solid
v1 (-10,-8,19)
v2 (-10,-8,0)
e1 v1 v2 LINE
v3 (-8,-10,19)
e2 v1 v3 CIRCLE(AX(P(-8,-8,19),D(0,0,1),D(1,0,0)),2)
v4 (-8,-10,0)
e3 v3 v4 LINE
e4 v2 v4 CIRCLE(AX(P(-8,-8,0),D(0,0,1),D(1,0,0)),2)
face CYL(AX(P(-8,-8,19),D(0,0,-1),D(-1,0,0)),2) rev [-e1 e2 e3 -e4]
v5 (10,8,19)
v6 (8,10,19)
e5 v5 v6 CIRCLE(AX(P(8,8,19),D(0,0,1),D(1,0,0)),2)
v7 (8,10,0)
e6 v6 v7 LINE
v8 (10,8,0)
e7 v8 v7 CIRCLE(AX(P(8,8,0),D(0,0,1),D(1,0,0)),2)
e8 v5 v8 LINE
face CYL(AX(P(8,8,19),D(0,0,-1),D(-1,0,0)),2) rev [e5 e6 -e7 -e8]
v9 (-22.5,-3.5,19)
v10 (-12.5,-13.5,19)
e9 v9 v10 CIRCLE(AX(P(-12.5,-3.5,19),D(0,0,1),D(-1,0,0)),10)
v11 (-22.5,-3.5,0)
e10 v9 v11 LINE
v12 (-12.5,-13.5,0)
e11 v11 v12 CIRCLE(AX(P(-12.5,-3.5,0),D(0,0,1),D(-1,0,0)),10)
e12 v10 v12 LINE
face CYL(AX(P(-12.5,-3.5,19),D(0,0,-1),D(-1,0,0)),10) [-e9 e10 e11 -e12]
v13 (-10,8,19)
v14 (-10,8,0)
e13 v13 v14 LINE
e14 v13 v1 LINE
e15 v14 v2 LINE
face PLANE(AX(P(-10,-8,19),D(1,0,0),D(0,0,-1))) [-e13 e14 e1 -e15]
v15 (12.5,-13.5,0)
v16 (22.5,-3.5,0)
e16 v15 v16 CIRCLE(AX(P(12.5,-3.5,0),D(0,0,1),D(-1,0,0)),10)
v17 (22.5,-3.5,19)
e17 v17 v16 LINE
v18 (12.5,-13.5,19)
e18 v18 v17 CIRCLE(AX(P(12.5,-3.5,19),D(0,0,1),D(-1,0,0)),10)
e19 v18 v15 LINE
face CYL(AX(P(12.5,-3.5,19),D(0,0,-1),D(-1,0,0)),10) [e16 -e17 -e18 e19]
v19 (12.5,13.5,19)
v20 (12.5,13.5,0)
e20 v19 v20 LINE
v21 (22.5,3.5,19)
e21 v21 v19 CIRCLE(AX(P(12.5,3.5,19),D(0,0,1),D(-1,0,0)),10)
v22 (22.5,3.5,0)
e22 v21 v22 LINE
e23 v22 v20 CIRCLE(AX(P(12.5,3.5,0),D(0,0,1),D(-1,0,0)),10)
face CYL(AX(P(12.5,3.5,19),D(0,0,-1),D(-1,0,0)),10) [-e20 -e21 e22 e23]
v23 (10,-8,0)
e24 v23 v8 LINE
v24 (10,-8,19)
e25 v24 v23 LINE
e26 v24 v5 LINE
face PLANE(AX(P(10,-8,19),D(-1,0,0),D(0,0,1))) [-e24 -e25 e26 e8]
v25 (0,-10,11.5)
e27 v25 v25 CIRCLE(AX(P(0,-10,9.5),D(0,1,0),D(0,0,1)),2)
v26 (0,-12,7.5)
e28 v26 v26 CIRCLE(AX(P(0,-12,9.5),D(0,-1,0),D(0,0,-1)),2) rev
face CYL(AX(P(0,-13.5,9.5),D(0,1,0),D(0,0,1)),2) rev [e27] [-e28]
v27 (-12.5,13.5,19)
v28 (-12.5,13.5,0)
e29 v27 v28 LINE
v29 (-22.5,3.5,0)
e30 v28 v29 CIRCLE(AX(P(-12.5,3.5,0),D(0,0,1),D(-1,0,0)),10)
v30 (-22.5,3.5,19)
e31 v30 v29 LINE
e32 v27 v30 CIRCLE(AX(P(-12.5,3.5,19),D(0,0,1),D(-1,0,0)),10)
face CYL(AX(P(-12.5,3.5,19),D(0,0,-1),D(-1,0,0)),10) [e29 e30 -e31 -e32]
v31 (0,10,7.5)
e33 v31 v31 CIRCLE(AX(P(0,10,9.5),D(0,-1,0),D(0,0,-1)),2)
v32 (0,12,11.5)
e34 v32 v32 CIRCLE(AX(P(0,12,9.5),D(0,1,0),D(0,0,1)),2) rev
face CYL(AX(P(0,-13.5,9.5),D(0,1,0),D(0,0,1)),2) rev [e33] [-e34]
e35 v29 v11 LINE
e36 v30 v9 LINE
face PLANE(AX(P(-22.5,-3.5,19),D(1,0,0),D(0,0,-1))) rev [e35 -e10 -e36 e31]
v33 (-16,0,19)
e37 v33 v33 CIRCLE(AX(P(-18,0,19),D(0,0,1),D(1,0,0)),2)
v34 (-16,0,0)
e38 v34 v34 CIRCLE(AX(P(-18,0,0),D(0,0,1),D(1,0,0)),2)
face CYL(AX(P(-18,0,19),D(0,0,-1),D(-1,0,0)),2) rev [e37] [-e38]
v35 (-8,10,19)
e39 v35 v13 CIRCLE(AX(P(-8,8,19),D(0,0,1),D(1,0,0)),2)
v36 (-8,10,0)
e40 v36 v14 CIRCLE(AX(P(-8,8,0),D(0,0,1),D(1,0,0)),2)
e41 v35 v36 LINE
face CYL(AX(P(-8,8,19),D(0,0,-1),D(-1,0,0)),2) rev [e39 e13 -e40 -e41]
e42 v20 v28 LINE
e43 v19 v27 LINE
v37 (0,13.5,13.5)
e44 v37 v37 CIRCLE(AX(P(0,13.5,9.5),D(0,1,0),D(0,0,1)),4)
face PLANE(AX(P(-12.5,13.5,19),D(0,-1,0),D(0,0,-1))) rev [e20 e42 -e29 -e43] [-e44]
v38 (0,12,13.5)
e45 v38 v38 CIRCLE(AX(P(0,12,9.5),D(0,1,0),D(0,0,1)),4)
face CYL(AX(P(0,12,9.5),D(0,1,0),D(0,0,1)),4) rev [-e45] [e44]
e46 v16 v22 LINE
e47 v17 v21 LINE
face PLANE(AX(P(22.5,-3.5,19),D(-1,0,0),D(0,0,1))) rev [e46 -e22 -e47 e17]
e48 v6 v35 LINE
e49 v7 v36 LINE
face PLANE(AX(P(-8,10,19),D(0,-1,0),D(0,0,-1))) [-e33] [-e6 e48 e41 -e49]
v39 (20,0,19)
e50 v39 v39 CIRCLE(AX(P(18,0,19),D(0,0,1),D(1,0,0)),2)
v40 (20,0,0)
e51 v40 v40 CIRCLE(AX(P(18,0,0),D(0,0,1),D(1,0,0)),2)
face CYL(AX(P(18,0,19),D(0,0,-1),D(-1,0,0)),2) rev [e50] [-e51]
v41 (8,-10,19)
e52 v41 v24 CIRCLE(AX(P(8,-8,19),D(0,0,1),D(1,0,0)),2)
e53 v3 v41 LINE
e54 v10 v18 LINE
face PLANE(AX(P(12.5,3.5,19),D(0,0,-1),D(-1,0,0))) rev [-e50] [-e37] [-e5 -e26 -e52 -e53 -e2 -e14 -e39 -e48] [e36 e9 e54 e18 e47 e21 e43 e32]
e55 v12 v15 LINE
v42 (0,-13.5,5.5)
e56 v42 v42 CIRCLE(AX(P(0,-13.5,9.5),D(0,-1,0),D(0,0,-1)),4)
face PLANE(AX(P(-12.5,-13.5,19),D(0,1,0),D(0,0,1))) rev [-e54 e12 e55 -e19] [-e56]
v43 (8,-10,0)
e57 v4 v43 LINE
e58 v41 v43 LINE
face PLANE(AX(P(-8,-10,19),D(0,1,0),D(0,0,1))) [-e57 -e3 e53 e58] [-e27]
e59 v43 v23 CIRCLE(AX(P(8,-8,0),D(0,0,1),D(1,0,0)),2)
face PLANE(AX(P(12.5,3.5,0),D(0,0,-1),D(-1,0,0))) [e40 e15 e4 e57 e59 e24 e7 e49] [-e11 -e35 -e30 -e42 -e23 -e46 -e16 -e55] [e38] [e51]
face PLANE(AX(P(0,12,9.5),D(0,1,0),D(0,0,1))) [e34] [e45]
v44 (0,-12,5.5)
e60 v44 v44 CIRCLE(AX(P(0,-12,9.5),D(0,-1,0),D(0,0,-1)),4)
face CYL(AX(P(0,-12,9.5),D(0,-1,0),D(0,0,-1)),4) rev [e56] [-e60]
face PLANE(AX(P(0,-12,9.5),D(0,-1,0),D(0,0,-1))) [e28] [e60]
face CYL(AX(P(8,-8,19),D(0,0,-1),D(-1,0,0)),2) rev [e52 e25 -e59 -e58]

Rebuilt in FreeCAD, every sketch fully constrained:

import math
import FreeCAD as App
import Part
import Sketcher
Q = App.Units.Quantity

doc = App.newDocument("Part")
params = doc.addObject("Spreadsheet::Sheet", "Params")
for row, (alias, value) in enumerate([
    ("sketch1_diameter", "4 mm"),
    ("sketch1_radius", "10 mm"),
    ("sketch1_width", "25 mm"),
    ("sketch1_width2", "16 mm"),
    ("sketch1_height", "7 mm"),
    ("pad1_length", "19 mm"),
    ("sketch2_diameter", "4 mm"),
    ("sketch3_diameter", "8 mm"),
    ("pocket2_length", "1.5 mm"),
    ("sketch4_diameter", "8 mm"),
    ("pocket3_length", "1.5 mm"),
], start=1):
    params.set(f"A{row}", alias)
    params.set(f"B{row}", "=" + value)
    params.setAlias(f"B{row}", alias)

body = doc.addObject("PartDesign::Body", "Body")

# Sketch on XY plane
sketch1 = body.newObject("Sketcher::SketchObject", "Sketch")
sketch1.AttachmentSupport = (doc.getObject("XY_Plane"), [""])
sketch1.MapMode = "FlatFace"
sketch1.addGeometry([
    Part.LineSegment(App.Vector(-12.5, -13.5, 0), App.Vector(12.5, -13.5, 0)),  # 0
    Part.ArcOfCircle(Part.Circle(App.Vector(12.5, -3.5, 0), App.Vector(0, 0, 1), 10), math.radians(-90), math.radians(0)),  # 1
    Part.LineSegment(App.Vector(22.5, -3.5, 0), App.Vector(22.5, 3.5, 0)),  # 2
    Part.ArcOfCircle(Part.Circle(App.Vector(12.5, 3.5, 0), App.Vector(0, 0, 1), 10), math.radians(0), math.radians(90)),  # 3
    Part.LineSegment(App.Vector(12.5, 13.5, 0), App.Vector(-12.5, 13.5, 0)),  # 4
    Part.ArcOfCircle(Part.Circle(App.Vector(-12.5, 3.5, 0), App.Vector(0, 0, 1), 10), math.radians(90), math.radians(180)),  # 5
    Part.LineSegment(App.Vector(-22.5, 3.5, 0), App.Vector(-22.5, -3.5, 0)),  # 6
    Part.ArcOfCircle(Part.Circle(App.Vector(-12.5, -3.5, 0), App.Vector(0, 0, 1), 10), math.radians(180), math.radians(270)),  # 7
    Part.Circle(App.Vector(-18, 0, 0), App.Vector(0, 0, 1), 2),  # 8
    Part.LineSegment(App.Vector(8, -10, 0), App.Vector(-8, -10, 0)),  # 9
    Part.ArcOfCircle(Part.Circle(App.Vector(-8, -8, 0), App.Vector(0, 0, 1), 2), math.radians(-180), math.radians(-90)),  # 10
    Part.LineSegment(App.Vector(-10, -8, 0), App.Vector(-10, 8, 0)),  # 11
    Part.ArcOfCircle(Part.Circle(App.Vector(-8, 8, 0), App.Vector(0, 0, 1), 2), math.radians(90), math.radians(180)),  # 12
    Part.LineSegment(App.Vector(-8, 10, 0), App.Vector(8, 10, 0)),  # 13
    Part.ArcOfCircle(Part.Circle(App.Vector(8, 8, 0), App.Vector(0, 0, 1), 2), math.radians(0), math.radians(90)),  # 14
    Part.LineSegment(App.Vector(10, 8, 0), App.Vector(10, -8, 0)),  # 15
    Part.ArcOfCircle(Part.Circle(App.Vector(8, -8, 0), App.Vector(0, 0, 1), 2), math.radians(-90), math.radians(0)),  # 16
    Part.Circle(App.Vector(18, 0, 0), App.Vector(0, 0, 1), 2),  # 17
], False)
sketch1.addConstraint([
    Sketcher.Constraint("Tangent", 0, 2, 1, 1),
    Sketcher.Constraint("Tangent", 1, 2, 2, 1),
    Sketcher.Constraint("Tangent", 2, 2, 3, 1),
    Sketcher.Constraint("Tangent", 3, 2, 4, 1),
    Sketcher.Constraint("Tangent", 4, 2, 5, 1),
    Sketcher.Constraint("Tangent", 5, 2, 6, 1),
    Sketcher.Constraint("Tangent", 6, 2, 7, 1),
    Sketcher.Constraint("Tangent", 7, 2, 0, 1),
    Sketcher.Constraint("Tangent", 9, 2, 10, 2),
    Sketcher.Constraint("Tangent", 10, 1, 11, 1),
    Sketcher.Constraint("Tangent", 11, 2, 12, 2),
    Sketcher.Constraint("Tangent", 12, 1, 13, 1),
    Sketcher.Constraint("Tangent", 13, 2, 14, 2),
    Sketcher.Constraint("Tangent", 14, 1, 15, 1),
    Sketcher.Constraint("Tangent", 15, 2, 16, 2),
    Sketcher.Constraint("Tangent", 16, 1, 9, 1),
    Sketcher.Constraint("Horizontal", 0),
    Sketcher.Constraint("Vertical", 2),
    Sketcher.Constraint("Horizontal", 4),
    Sketcher.Constraint("Vertical", 6),
    Sketcher.Constraint("Horizontal", 9),
    Sketcher.Constraint("Vertical", 11),
    Sketcher.Constraint("Horizontal", 13),
    Sketcher.Constraint("Vertical", 15),
    Sketcher.Constraint("Equal", 1, 3),
    Sketcher.Constraint("Equal", 3, 5),
    Sketcher.Constraint("Equal", 5, 7),
    Sketcher.Constraint("Equal", 8, 10),
    Sketcher.Constraint("Equal", 10, 12),
    Sketcher.Constraint("Equal", 12, 14),
    Sketcher.Constraint("Equal", 14, 16),
    Sketcher.Constraint("Equal", 16, 17),
    Sketcher.Constraint("Symmetric", 1, 3, 5, 3, -1, 1),
    Sketcher.Constraint("Symmetric", 10, 3, 14, 3, -1, 1),
    Sketcher.Constraint("Symmetric", 8, 3, 17, 3, -1, 1),
    Sketcher.Constraint("PointOnObject", 8, 3, -1),
    Sketcher.Constraint("Equal", 13, 11),
    Sketcher.Constraint("Diameter", 8, Q("4 mm")),
    Sketcher.Constraint("Radius", 1, Q("10 mm")),
    Sketcher.Constraint("DistanceX", 0, 1, 0, 2, Q("25 mm")),
    Sketcher.Constraint("DistanceX", 9, 2, 9, 1, Q("16 mm")),
    Sketcher.Constraint("DistanceY", 2, 1, 2, 2, Q("7 mm")),
    Sketcher.Constraint("DistanceX", 8, 3, -1, 1, Q("18 mm")),
])
sketch1.setExpression("Constraints[37]", "Params.sketch1_diameter")
sketch1.setExpression("Constraints[38]", "Params.sketch1_radius")
sketch1.setExpression("Constraints[39]", "Params.sketch1_width")
sketch1.setExpression("Constraints[40]", "Params.sketch1_width2")
sketch1.setExpression("Constraints[41]", "Params.sketch1_height")
pad1 = body.newObject("PartDesign::Pad", "Pad")
pad1.Profile = sketch1
pad1.setExpression("Length", "Params.pad1_length")

# Sketch on XZ plane
sketch2 = body.newObject("Sketcher::SketchObject", "Sketch001")
sketch2.AttachmentSupport = (doc.getObject("XZ_Plane"), [""])
sketch2.MapMode = "FlatFace"
sketch2.AttachmentOffset = App.Placement(App.Vector(0, 0, -13.5), App.Rotation())
sketch2.addGeometry(Part.Circle(App.Vector(0, 9.5, 0), App.Vector(0, 0, 1), 2), False)
sketch2.addConstraint([
    Sketcher.Constraint("PointOnObject", 0, 3, -2),
    Sketcher.Constraint("Diameter", 0, Q("4 mm")),
    Sketcher.Constraint("DistanceY", -1, 1, 0, 3, Q("9.5 mm")),
])
sketch2.setExpression("Constraints[1]", "Params.sketch2_diameter")
pocket1 = body.newObject("PartDesign::Pocket", "Pocket")
pocket1.Profile = sketch2
pocket1.Type = "ThroughAll"
pocket1.Reversed = True

# Sketch on XZ plane
sketch3 = body.newObject("Sketcher::SketchObject", "Sketch002")
sketch3.AttachmentSupport = (doc.getObject("XZ_Plane"), [""])
sketch3.MapMode = "FlatFace"
sketch3.AttachmentOffset = App.Placement(App.Vector(0, 0, -13.5), App.Rotation())
sketch3.addGeometry(Part.Circle(App.Vector(0, 9.5, 0), App.Vector(0, 0, 1), 4), False)
sketch3.addConstraint([
    Sketcher.Constraint("PointOnObject", 0, 3, -2),
    Sketcher.Constraint("Diameter", 0, Q("8 mm")),
    Sketcher.Constraint("DistanceY", -1, 1, 0, 3, Q("9.5 mm")),
])
sketch3.setExpression("Constraints[1]", "Params.sketch3_diameter")
pocket2 = body.newObject("PartDesign::Pocket", "Pocket001")
pocket2.Profile = sketch3
pocket2.setExpression("Length", "Params.pocket2_length")
pocket2.Reversed = True

# Sketch on XZ plane
sketch4 = body.newObject("Sketcher::SketchObject", "Sketch003")
sketch4.AttachmentSupport = (doc.getObject("XZ_Plane"), [""])
sketch4.MapMode = "FlatFace"
sketch4.AttachmentOffset = App.Placement(App.Vector(0, 0, 12), App.Rotation())
sketch4.addGeometry(Part.Circle(App.Vector(0, 9.5, 0), App.Vector(0, 0, 1), 4), False)
sketch4.addConstraint([
    Sketcher.Constraint("PointOnObject", 0, 3, -2),
    Sketcher.Constraint("Diameter", 0, Q("8 mm")),
    Sketcher.Constraint("DistanceY", -1, 1, 0, 3, Q("9.5 mm")),
])
sketch4.setExpression("Constraints[1]", "Params.sketch4_diameter")
pocket3 = body.newObject("PartDesign::Pocket", "Pocket002")
pocket3.Profile = sketch4
pocket3.setExpression("Length", "Params.pocket3_length")
pocket3.Reversed = True

doc.recompute()
